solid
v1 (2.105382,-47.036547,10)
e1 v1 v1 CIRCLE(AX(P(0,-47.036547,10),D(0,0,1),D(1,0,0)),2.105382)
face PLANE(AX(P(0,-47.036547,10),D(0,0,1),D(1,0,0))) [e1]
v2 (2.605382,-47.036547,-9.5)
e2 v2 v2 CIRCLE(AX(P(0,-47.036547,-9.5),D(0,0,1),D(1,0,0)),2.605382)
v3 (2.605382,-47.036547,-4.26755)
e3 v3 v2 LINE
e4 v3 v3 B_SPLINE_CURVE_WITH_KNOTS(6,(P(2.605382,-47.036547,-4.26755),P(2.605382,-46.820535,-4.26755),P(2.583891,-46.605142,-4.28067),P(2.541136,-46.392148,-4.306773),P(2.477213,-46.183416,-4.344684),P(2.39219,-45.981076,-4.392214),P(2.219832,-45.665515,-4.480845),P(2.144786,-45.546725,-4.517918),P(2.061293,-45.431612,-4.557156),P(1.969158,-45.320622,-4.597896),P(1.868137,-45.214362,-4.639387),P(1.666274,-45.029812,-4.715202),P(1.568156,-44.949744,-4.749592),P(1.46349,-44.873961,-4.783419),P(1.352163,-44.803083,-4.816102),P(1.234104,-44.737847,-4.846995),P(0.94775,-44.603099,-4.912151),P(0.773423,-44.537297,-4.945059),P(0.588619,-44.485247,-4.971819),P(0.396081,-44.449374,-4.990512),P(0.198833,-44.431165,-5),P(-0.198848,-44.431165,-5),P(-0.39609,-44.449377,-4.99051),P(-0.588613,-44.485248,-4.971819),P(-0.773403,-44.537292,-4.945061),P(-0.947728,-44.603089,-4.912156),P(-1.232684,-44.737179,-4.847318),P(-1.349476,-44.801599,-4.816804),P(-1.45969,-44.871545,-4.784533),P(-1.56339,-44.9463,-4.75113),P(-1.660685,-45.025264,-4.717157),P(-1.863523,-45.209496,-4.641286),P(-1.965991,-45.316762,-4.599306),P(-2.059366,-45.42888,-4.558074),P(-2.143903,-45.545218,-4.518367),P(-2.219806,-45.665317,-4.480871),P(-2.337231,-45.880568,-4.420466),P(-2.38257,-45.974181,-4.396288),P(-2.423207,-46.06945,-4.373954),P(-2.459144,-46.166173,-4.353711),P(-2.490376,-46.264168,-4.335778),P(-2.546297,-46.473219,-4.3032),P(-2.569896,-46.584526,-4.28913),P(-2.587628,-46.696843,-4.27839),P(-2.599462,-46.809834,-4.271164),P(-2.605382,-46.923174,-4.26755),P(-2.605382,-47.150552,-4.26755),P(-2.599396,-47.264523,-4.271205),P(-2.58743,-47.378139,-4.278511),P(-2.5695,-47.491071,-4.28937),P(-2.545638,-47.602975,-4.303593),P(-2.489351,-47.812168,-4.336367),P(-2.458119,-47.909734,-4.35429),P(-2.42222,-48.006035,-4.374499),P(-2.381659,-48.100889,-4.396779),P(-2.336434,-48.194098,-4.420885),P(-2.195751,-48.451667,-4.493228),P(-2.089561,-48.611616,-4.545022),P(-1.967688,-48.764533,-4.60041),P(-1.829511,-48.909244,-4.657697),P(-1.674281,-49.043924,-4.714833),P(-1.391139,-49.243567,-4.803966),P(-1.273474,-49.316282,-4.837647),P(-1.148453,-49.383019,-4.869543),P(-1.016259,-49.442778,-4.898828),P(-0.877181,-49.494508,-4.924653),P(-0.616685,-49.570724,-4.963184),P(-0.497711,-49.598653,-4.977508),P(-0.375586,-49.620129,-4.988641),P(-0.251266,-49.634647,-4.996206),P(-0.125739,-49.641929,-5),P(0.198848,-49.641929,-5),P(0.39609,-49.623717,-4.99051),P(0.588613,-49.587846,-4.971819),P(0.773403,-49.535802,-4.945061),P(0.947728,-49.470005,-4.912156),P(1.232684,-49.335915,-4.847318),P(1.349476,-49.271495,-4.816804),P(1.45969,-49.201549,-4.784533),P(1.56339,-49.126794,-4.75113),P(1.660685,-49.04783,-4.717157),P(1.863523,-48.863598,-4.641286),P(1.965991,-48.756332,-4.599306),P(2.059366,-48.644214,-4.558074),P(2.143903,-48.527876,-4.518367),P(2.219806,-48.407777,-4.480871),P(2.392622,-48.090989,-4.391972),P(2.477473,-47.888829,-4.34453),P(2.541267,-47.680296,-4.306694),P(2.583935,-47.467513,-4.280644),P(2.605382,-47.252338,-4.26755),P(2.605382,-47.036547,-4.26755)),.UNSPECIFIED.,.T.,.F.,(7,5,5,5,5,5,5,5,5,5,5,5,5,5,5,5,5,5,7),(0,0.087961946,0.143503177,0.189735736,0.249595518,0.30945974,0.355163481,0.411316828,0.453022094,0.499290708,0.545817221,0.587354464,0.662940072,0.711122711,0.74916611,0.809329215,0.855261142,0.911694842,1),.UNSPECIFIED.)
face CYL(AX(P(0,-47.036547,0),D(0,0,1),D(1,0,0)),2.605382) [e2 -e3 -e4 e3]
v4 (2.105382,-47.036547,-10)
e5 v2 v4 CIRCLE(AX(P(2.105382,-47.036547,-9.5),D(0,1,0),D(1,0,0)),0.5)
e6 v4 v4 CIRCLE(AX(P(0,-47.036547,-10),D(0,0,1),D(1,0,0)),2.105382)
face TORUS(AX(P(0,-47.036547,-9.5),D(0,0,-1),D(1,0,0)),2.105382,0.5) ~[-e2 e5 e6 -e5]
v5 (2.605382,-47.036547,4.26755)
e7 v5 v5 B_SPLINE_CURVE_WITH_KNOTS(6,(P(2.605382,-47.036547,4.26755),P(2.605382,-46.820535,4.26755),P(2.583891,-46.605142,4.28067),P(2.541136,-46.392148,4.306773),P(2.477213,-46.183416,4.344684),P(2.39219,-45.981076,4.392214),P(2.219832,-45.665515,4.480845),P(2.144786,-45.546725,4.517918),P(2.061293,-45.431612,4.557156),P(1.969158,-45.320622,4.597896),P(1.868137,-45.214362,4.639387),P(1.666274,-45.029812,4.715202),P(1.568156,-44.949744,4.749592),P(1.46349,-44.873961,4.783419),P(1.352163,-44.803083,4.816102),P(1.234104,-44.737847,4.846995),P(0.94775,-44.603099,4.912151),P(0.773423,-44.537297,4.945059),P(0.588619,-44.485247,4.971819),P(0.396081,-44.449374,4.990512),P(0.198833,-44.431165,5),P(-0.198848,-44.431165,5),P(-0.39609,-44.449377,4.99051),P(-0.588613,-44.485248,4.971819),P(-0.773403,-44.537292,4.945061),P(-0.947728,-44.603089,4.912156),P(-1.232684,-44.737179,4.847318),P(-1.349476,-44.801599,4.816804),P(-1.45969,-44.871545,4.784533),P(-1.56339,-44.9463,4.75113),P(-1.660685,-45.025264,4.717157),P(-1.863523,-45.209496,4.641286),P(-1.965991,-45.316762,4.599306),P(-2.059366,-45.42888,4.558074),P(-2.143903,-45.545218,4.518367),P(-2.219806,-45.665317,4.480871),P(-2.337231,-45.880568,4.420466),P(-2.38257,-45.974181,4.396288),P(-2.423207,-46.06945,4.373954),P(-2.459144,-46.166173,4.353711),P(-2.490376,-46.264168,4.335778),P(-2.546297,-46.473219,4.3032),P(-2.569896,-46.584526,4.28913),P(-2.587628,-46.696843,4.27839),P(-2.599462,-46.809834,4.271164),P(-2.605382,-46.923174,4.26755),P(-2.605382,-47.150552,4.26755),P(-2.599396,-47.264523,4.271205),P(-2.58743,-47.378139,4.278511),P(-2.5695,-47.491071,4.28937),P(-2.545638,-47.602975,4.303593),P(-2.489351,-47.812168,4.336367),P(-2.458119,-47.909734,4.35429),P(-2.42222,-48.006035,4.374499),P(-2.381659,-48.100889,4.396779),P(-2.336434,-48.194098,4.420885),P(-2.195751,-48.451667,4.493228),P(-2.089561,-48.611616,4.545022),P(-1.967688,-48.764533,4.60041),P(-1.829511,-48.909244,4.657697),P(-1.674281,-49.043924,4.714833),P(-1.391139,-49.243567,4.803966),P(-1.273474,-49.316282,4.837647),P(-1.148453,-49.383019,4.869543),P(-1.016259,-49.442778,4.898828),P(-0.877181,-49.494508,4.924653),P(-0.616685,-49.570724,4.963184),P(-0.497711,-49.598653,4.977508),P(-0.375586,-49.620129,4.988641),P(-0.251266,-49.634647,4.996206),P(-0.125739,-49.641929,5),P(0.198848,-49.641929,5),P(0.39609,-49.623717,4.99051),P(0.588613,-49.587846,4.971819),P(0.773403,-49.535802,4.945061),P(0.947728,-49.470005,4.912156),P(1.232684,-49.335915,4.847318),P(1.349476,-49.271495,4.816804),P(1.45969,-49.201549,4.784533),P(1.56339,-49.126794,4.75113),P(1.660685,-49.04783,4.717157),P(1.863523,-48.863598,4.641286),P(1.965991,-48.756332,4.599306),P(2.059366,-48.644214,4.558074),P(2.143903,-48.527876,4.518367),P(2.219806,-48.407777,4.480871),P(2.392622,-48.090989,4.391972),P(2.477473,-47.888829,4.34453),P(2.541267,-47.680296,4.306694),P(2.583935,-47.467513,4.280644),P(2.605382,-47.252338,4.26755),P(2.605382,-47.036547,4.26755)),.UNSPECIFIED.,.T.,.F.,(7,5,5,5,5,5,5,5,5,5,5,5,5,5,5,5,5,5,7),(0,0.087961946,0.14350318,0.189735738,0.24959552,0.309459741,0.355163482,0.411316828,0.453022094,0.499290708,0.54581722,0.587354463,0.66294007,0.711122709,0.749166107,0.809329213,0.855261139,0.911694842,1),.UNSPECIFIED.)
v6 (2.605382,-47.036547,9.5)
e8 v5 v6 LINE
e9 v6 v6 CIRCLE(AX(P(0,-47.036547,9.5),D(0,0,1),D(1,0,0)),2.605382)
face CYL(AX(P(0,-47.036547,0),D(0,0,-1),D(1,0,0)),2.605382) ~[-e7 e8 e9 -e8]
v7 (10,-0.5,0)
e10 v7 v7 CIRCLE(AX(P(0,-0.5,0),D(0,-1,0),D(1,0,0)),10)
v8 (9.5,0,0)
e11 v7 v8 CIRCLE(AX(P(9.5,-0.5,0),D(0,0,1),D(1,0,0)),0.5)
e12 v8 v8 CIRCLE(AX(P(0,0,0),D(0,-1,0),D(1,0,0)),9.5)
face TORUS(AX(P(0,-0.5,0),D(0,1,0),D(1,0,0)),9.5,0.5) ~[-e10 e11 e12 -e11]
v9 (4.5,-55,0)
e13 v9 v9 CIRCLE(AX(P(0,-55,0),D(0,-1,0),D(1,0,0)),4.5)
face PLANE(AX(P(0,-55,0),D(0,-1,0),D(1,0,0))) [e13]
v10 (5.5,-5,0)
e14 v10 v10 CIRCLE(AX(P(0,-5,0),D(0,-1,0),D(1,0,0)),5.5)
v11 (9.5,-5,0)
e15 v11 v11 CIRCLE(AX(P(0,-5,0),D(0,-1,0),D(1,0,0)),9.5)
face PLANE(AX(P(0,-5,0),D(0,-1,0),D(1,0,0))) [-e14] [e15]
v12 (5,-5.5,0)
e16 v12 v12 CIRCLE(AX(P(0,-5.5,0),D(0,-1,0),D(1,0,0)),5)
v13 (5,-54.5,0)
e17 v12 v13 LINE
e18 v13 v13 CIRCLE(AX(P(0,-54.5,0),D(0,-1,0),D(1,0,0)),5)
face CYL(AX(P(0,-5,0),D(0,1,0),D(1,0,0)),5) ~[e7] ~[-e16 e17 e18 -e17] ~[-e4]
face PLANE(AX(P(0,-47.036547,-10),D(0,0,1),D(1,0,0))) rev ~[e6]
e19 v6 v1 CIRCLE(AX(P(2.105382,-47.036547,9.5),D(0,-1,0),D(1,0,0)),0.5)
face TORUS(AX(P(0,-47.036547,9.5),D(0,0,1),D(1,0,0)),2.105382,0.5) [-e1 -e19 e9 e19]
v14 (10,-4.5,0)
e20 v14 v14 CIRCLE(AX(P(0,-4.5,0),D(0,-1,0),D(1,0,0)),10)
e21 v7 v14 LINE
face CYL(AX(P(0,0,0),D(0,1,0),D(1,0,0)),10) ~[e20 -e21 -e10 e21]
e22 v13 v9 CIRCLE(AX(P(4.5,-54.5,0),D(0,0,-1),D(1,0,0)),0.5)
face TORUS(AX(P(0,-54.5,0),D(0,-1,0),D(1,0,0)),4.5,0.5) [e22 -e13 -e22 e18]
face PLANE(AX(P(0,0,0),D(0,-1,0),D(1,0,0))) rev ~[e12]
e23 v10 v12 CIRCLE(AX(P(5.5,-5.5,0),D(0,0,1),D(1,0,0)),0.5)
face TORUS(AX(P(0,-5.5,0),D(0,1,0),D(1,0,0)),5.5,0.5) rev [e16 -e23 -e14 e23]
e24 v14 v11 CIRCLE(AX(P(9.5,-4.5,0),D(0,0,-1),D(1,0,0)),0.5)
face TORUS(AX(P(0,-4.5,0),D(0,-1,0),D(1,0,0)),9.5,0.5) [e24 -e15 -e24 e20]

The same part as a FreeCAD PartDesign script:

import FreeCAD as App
import Part
import Sketcher
from FreeCAD import Vector
Q = App.Units.Quantity


def edges_at(feature, points):
    """Names of the edges that pass closest to the given points."""
    edges = feature.Shape.Edges
    near = lambda p: min(range(len(edges)), key=lambda i: edges[i].distToShape(Part.Vertex(*p))[0])
    return sorted({f"Edge{near(p) + 1}" for p in points})

doc = App.newDocument("Part")
body = doc.addObject("PartDesign::Body", "Body")

# Sketch on XZ plane
sketch1 = body.newObject("Sketcher::SketchObject", "Sketch")
sketch1.AttachmentSupport = (doc.getObject("XZ_Plane"), [""])
sketch1.MapMode = "FlatFace"
sketch1.addGeometry(Part.Circle(Vector(0, 0, 0), Vector(0, 0, 1), 10), False)
sketch1.addConstraint([
    Sketcher.Constraint("Coincident", 0, 3, -1, 1),
    Sketcher.Constraint("Diameter", 0, Q("20 mm")),
])
pad1 = body.newObject("PartDesign::Pad", "Pad")
pad1.Profile = sketch1
pad1.Length = 5

# Sketch on XZ plane
sketch2 = body.newObject("Sketcher::SketchObject", "Sketch001")
sketch2.AttachmentSupport = (doc.getObject("XZ_Plane"), [""])
sketch2.MapMode = "FlatFace"
sketch2.AttachmentOffset = App.Placement(Vector(0, 0, 5), App.Rotation())
sketch2.addGeometry(Part.Circle(Vector(0, 0, 0), Vector(0, 0, 1), 5), False)
sketch2.addConstraint([
    Sketcher.Constraint("Coincident", 0, 3, -1, 1),
    Sketcher.Constraint("Diameter", 0, Q("10 mm")),
])
pad2 = body.newObject("PartDesign::Pad", "Pad001")
pad2.Profile = sketch2
pad2.Length = 50
doc.recompute()

fillet = body.newObject("PartDesign::Fillet", "Fillet")
fillet.Base = (pad2, edges_at(pad2, [
    (-10, -5, 0),
    (-10, 0, 0),
    (-5, -5, 0),
    (-5, -55, 0),
]))
fillet.Radius = 0.5

# Sketch on XY plane
sketch3 = body.newObject("Sketcher::SketchObject", "Sketch002")
sketch3.AttachmentSupport = (doc.getObject("XY_Plane"), [""])
sketch3.MapMode = "FlatFace"
sketch3.addGeometry(Part.Circle(Vector(0, -47, 0), Vector(0, 0, 1), 2.6), False)
sketch3.addConstraint([
    Sketcher.Constraint("PointOnObject", 0, 3, -2),
    Sketcher.Constraint("Diameter", 0, Q("5.210764 mm")),
    Sketcher.Constraint("DistanceY", 0, 3, -1, 1, Q("47.036547 mm")),
])
pad3 = body.newObject("PartDesign::Pad", "Pad002")
pad3.Profile = sketch3
pad3.Type = "TwoLengths"
pad3.Length = 10
pad3.Length2 = 10
doc.recompute()

fillet2 = body.newObject("PartDesign::Fillet", "Fillet001")
fillet2.Base = (pad3, edges_at(pad3, [(-2.605, -47.037, 10), (-2.605, -47.037, -10)]))
fillet2.Radius = 0.5

doc.recompute()
